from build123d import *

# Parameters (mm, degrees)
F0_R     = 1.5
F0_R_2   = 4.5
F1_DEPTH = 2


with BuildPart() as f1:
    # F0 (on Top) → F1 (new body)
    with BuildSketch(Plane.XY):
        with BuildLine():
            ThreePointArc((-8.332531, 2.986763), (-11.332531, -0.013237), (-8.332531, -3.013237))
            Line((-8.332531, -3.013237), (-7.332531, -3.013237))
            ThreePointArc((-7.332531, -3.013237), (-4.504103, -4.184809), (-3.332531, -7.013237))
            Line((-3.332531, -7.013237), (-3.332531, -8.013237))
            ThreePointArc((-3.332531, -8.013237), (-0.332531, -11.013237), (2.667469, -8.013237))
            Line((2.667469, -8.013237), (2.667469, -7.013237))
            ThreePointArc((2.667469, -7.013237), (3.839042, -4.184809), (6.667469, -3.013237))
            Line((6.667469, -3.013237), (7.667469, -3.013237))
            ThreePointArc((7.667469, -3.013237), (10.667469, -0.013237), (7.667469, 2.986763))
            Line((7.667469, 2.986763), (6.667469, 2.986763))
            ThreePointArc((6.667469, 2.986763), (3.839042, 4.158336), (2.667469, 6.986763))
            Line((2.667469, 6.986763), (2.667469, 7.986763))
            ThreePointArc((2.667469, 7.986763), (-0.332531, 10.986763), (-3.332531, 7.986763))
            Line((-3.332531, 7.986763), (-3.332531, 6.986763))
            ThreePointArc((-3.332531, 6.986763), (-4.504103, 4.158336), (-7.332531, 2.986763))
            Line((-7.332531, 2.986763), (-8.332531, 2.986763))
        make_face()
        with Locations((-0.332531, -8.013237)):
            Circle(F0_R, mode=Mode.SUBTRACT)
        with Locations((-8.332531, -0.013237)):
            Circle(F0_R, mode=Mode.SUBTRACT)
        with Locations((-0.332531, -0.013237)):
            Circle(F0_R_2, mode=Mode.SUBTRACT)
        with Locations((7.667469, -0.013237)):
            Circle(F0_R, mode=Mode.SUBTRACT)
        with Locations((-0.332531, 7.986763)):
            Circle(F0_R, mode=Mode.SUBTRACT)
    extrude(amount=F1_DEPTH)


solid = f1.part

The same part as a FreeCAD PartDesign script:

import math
import FreeCAD as App
import Part
import Sketcher
Q = App.Units.Quantity

doc = App.newDocument("Part")
body = doc.addObject("PartDesign::Body", "Body")

# Sketch on XY plane
sketch1 = body.newObject("Sketcher::SketchObject", "Sketch")
sketch1.AttachmentSupport = (doc.getObject("XY_Plane"), [""])
sketch1.MapMode = "FlatFace"
sketch1.addGeometry([
    Part.ArcOfCircle(Part.Circle(App.Vector(-8.3, 0, 0), App.Vector(0, 0, 1), 3), math.radians(90), math.radians(270)),  # 0
    Part.LineSegment(App.Vector(-8.3, -3, 0), App.Vector(-7.3, -3, 0)),  # 1
    Part.ArcOfCircle(Part.Circle(App.Vector(-7.3, -7, 0), App.Vector(0, 0, 1), 4), math.radians(0), math.radians(90)),  # 2
    Part.LineSegment(App.Vector(-3.3, -7, 0), App.Vector(-3.3, -8, 0)),  # 3
    Part.ArcOfCircle(Part.Circle(App.Vector(-0.3, -8, 0), App.Vector(0, 0, 1), 3), math.radians(180), math.radians(360)),  # 4
    Part.LineSegment(App.Vector(2.7, -8, 0), App.Vector(2.7, -7, 0)),  # 5
    Part.ArcOfCircle(Part.Circle(App.Vector(6.7, -7, 0), App.Vector(0, 0, 1), 4), math.radians(90), math.radians(180)),  # 6
    Part.LineSegment(App.Vector(6.7, -3, 0), App.Vector(7.7, -3, 0)),  # 7
    Part.ArcOfCircle(Part.Circle(App.Vector(7.7, 0, 0), App.Vector(0, 0, 1), 3), math.radians(-90), math.radians(90)),  # 8
    Part.LineSegment(App.Vector(7.7, 3, 0), App.Vector(6.7, 3, 0)),  # 9
    Part.ArcOfCircle(Part.Circle(App.Vector(6.7, 7, 0), App.Vector(0, 0, 1), 4), math.radians(-180), math.radians(-90)),  # 10
    Part.LineSegment(App.Vector(2.7, 7, 0), App.Vector(2.7, 8, 0)),  # 11
    Part.ArcOfCircle(Part.Circle(App.Vector(-0.3, 8, 0), App.Vector(0, 0, 1), 3), math.radians(0), math.radians(180)),  # 12
    Part.LineSegment(App.Vector(-3.3, 8, 0), App.Vector(-3.3, 7, 0)),  # 13
    Part.ArcOfCircle(Part.Circle(App.Vector(-7.3, 7, 0), App.Vector(0, 0, 1), 4), math.radians(-90), math.radians(0)),  # 14
    Part.LineSegment(App.Vector(-7.3, 3, 0), App.Vector(-8.3, 3, 0)),  # 15
    Part.Circle(App.Vector(-0.3, -8, 0), App.Vector(0, 0, 1), 1.5),  # 16
    Part.Circle(App.Vector(-8.3, 0, 0), App.Vector(0, 0, 1), 1.5),  # 17
    Part.Circle(App.Vector(-0.3, 0, 0), App.Vector(0, 0, 1), 4.5),  # 18
    Part.Circle(App.Vector(7.7, 0, 0), App.Vector(0, 0, 1), 1.5),  # 19
    Part.Circle(App.Vector(-0.3, 8, 0), App.Vector(0, 0, 1), 1.5),  # 20
], False)
sketch1.addConstraint([
    Sketcher.Constraint("Tangent", 0, 2, 1, 1),
    Sketcher.Constraint("Tangent", 1, 2, 2, 2),
    Sketcher.Constraint("Tangent", 2, 1, 3, 1),
    Sketcher.Constraint("Tangent", 3, 2, 4, 1),
    Sketcher.Constraint("Tangent", 4, 2, 5, 1),
    Sketcher.Constraint("Tangent", 5, 2, 6, 2),
    Sketcher.Constraint("Tangent", 6, 1, 7, 1),
    Sketcher.Constraint("Tangent", 7, 2, 8, 1),
    Sketcher.Constraint("Tangent", 8, 2, 9, 1),
    Sketcher.Constraint("Tangent", 9, 2, 10, 2),
    Sketcher.Constraint("Tangent", 10, 1, 11, 1),
    Sketcher.Constraint("Tangent", 11, 2, 12, 1),
    Sketcher.Constraint("Tangent", 12, 2, 13, 1),
    Sketcher.Constraint("Tangent", 13, 2, 14, 2),
    Sketcher.Constraint("Tangent", 14, 1, 15, 1),
    Sketcher.Constraint("Tangent", 15, 2, 0, 1),
    Sketcher.Constraint("Horizontal", 1),
    Sketcher.Constraint("Vertical", 3),
    Sketcher.Constraint("Vertical", 5),
    Sketcher.Constraint("Horizontal", 7),
    Sketcher.Constraint("Horizontal", 9),
    Sketcher.Constraint("Vertical", 11),
    Sketcher.Constraint("Vertical", 13),
    Sketcher.Constraint("Horizontal", 15),
    Sketcher.Constraint("Coincident", 16, 3, 4, 3),
    Sketcher.Constraint("Coincident", 17, 3, 0, 3),
    Sketcher.Constraint("Coincident", 19, 3, 8, 3),
    Sketcher.Constraint("Coincident", 20, 3, 12, 3),
    Sketcher.Constraint("Equal", 0, 4),
    Sketcher.Constraint("Equal", 2, 6),
    Sketcher.Constraint("Equal", 4, 8),
    Sketcher.Constraint("Equal", 6, 10),
    Sketcher.Constraint("Equal", 8, 12),
    Sketcher.Constraint("Equal", 10, 14),
    Sketcher.Constraint("Equal", 16, 17),
    Sketcher.Constraint("Equal", 17, 19),
    Sketcher.Constraint("Equal", 19, 20),
    Sketcher.Constraint("Horizontal", 2, 3, 6, 3),
    Sketcher.Constraint("Horizontal", 17, 3, 18, 3),
    Sketcher.Constraint("Vertical", 6, 3, 10, 3),
    Sketcher.Constraint("Vertical", 16, 3, 18, 3),
    Sketcher.Constraint("Equal", 1, 7),
    Sketcher.Constraint("Equal", 15, 3),
    Sketcher.Constraint("Equal", 5, 11),
    Sketcher.Constraint("Diameter", 16, Q("3 mm")),
    Sketcher.Constraint("Diameter", 18, Q("9 mm")),
    Sketcher.Constraint("Radius", 0, Q("3 mm")),
    Sketcher.Constraint("Radius", 6, Q("3.999999 mm")),
    Sketcher.Constraint("DistanceX", 1, 1, 1, 2, Q("1 mm")),
    Sketcher.Constraint("DistanceX", 0, 3, -1, 1, Q("8.332531 mm")),
    Sketcher.Constraint("DistanceY", -1, 1, 14, 3, Q("6.986762 mm")),
])
pad1 = body.newObject("PartDesign::Pad", "Pad")
pad1.Profile = sketch1
pad1.Length = 2

doc.recompute()
